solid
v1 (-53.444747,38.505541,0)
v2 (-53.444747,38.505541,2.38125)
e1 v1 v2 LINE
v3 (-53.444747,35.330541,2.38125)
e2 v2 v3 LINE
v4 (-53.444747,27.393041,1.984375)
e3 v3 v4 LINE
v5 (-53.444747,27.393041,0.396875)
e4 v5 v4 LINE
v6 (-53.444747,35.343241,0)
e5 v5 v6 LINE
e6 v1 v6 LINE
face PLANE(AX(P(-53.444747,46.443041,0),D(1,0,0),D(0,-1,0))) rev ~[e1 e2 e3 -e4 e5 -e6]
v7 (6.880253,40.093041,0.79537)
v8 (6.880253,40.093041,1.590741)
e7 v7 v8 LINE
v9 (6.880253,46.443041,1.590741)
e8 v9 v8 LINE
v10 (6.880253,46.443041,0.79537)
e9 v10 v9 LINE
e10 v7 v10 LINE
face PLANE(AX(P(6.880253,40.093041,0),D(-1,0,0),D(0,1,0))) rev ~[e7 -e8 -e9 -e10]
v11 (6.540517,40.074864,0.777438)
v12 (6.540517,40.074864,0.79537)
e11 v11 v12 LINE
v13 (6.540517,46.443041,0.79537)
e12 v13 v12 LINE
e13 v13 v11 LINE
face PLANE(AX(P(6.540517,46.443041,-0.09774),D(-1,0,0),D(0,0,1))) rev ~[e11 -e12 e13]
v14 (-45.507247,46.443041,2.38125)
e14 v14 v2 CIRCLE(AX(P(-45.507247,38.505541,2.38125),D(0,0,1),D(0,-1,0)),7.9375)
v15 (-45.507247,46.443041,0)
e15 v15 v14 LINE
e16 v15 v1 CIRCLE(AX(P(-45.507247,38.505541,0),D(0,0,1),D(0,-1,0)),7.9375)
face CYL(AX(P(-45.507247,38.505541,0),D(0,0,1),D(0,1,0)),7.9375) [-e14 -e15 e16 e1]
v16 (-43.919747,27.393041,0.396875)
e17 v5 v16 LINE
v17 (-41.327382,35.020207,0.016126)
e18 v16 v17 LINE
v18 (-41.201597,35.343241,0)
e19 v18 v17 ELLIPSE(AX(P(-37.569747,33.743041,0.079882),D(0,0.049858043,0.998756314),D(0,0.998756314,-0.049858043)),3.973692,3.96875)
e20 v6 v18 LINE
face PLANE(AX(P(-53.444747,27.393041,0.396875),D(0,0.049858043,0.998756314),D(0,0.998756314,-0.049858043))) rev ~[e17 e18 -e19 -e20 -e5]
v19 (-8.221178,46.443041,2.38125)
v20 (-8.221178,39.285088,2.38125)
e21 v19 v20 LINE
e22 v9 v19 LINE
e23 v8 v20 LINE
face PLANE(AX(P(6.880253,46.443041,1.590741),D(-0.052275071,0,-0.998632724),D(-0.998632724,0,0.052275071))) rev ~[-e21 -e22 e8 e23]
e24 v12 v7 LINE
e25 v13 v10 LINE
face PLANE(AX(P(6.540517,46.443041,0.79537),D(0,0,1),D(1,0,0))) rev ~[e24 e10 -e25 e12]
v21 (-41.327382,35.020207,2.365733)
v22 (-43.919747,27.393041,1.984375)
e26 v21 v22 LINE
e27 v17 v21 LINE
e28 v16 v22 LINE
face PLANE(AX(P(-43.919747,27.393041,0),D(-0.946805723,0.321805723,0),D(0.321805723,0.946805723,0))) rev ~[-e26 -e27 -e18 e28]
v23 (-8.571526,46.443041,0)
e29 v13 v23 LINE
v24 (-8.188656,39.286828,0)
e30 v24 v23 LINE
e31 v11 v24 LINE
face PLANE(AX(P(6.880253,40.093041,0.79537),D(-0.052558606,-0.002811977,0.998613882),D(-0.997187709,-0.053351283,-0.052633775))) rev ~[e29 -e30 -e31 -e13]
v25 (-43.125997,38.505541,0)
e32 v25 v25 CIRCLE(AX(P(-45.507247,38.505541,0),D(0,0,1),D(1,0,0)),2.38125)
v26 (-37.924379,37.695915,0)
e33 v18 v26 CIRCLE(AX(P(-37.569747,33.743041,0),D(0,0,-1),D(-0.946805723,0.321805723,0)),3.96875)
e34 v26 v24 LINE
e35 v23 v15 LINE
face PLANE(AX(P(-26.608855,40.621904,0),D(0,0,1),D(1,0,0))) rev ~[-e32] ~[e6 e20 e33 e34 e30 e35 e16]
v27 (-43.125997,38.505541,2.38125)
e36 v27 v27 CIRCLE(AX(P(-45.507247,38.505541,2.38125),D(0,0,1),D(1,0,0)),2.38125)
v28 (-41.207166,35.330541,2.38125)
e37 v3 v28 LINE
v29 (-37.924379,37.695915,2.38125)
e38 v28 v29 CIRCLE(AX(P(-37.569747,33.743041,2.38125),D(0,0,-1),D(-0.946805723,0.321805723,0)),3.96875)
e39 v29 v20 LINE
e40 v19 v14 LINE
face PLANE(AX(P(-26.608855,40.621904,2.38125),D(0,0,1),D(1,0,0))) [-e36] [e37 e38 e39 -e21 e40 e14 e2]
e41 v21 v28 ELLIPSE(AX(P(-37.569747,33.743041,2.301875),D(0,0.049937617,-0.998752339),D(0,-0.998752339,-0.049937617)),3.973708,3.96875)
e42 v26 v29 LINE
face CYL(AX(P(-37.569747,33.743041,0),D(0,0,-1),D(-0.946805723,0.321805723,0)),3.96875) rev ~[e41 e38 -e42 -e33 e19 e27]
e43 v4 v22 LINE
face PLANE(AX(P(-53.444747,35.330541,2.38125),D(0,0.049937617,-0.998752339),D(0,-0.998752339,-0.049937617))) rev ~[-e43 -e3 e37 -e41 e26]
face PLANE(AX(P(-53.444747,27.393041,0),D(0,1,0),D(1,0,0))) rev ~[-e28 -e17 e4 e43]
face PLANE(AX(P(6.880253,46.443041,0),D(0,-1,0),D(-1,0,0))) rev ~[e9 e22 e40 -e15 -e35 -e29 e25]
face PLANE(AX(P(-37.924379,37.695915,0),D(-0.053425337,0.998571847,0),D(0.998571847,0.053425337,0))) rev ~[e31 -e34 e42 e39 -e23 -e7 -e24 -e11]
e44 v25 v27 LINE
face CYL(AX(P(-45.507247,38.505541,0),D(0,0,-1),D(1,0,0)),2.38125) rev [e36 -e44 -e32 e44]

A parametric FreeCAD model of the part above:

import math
import FreeCAD as App
import Part
import Sketcher
Q = App.Units.Quantity


def edges_at(feature, points):
    """Names of the edges that pass closest to the given points."""
    edges = feature.Shape.Edges
    near = lambda p: min(range(len(edges)), key=lambda i: edges[i].distToShape(Part.Vertex(*p))[0])
    return sorted({f"Edge{near(p) + 1}" for p in points})


def add_polygon(sketch, points):
    """Adds a closed chain of lines whose ends are joined by coincident constraints."""
    first, n = sketch.GeometryCount, len(points)
    for a, b in zip(points, points[1:] + points[:1]):
        sketch.addGeometry(Part.LineSegment(App.Vector(*a, 0), App.Vector(*b, 0)), False)
    for i in range(n):
        sketch.addConstraint(Sketcher.Constraint("Coincident", first + i, 2, first + (i + 1) % n, 1))

doc = App.newDocument("Part")
body = doc.addObject("PartDesign::Body", "Body")

# Sketch on XY plane
sketch1 = doc.addObject("Sketcher::SketchObject", "Sketch")
body.addObject(sketch1)
sketch1.AttachmentSupport = (doc.XY_Plane, [""])
sketch1.MapMode = "FlatFace"
sketch1.addGeometry([
    Part.LineSegment(App.Vector(6.9, 46.4, 0), App.Vector(-53.4, 46.4, 0)),  # 0
    Part.LineSegment(App.Vector(-53.4, 46.4, 0), App.Vector(-53.4, 27.4, 0)),  # 1
    Part.LineSegment(App.Vector(-53.4, 27.4, 0), App.Vector(-43.9, 27.4, 0)),  # 2
    Part.LineSegment(App.Vector(-43.9, 27.4, 0), App.Vector(-41.3, 35, 0)),  # 3
    Part.ArcOfCircle(Part.Circle(App.Vector(-37.6, 33.7, 0), App.Vector(0, 0, 1), 4), math.radians(95), math.radians(161)),  # 4
    Part.LineSegment(App.Vector(-37.9, 37.7, 0), App.Vector(6.9, 40.1, 0)),  # 5
    Part.LineSegment(App.Vector(6.9, 40.1, 0), App.Vector(6.9, 46.4, 0)),  # 6
    Part.Circle(App.Vector(-45.5, 38.5, 0), App.Vector(0, 0, 1), 2.4),  # 7
], False)
sketch1.addConstraint([
    Sketcher.Constraint("Coincident", 0, 2, 1, 1),
    Sketcher.Constraint("Coincident", 1, 2, 2, 1),
    Sketcher.Constraint("Coincident", 2, 2, 3, 1),
    Sketcher.Constraint("Tangent", 3, 2, 4, 2),
    Sketcher.Constraint("Coincident", 4, 1, 5, 1),
    Sketcher.Constraint("Coincident", 5, 2, 6, 1),
    Sketcher.Constraint("Coincident", 6, 2, 0, 1),
    Sketcher.Constraint("Horizontal", 0),
    Sketcher.Constraint("Vertical", 1),
    Sketcher.Constraint("Horizontal", 2),
    Sketcher.Constraint("Vertical", 6),
    Sketcher.Constraint("Diameter", 7, Q("0.1875 in")),
    Sketcher.Constraint("Radius", 4, Q("0.15625 in")),
    Sketcher.Constraint("DistanceX", 2, 2, 5, 2, Q("2 in")),
    Sketcher.Constraint("DistanceY", 1, 2, 1, 1, Q("0.75 in")),
    Sketcher.Constraint("DistanceY", 6, 1, 6, 2, Q("0.25 in")),
    Sketcher.Constraint("DistanceY", 4, 3, 0, 2, Q("0.5 in")),
    Sketcher.Constraint("DistanceX", 0, 2, 0, 1, Q("2.375 in")),
    Sketcher.Constraint("DistanceX", 2, 2, 4, 3, Q("0.25 in")),
    Sketcher.Constraint("DistanceX", 7, 3, 4, 3, Q("0.3125 in")),
    Sketcher.Constraint("DistanceY", 4, 3, 7, 3, Q("0.1875 in")),
    Sketcher.Constraint("Distance", 5, Q("44.868712 mm")),
    Sketcher.Constraint("DistanceY", -1, 1, 4, 3, Q("33.743041 mm")),
    Sketcher.Constraint("DistanceX", 4, 1, -1, 1, Q("37.924379 mm")),
])
pad1 = doc.addObject("PartDesign::Pad", "Pad")
body.addObject(pad1)
pad1.Profile = sketch1
pad1.Length = Q("0.09375 in")
doc.recompute()

fillet = doc.addObject("PartDesign::Fillet", "Fillet")
body.addObject(fillet)
fillet.Base = (pad1, edges_at(pad1, [(-53.445, 46.443, 1.191)]))
fillet.Radius = Q("0.3125 in")

# Sketch on XZ plane
sketch2 = doc.addObject("Sketcher::SketchObject", "Sketch001")
body.addObject(sketch2)
sketch2.AttachmentSupport = (doc.XZ_Plane, [""])
sketch2.MapMode = "FlatFace"
sketch2.AttachmentOffset = App.Placement(App.Vector(0, 0, -46.443041), App.Rotation())
add_polygon(sketch2, [(7.26976, 1.55048), (6.880253, 1.590741), (-8.221178, 2.38125), (-8.203061, 2.727358), (7.219336, 3.199072)])  # lines 0-4
sketch2.addConstraint([
    Sketcher.Constraint("DistanceY", -1, 1, 1, 2, Q("0.09375 in")),
    Sketcher.Constraint("Distance", 3, Q("15.429609 mm")),
    Sketcher.Constraint("DistanceY", -1, 1, 0, 2, Q("1.590741 mm")),
    Sketcher.Constraint("DistanceX", 1, 2, -1, 1, Q("8.221178 mm")),
    Sketcher.Constraint("DistanceX", 2, 2, -1, 1, Q("8.203061 mm")),
    Sketcher.Constraint("DistanceY", -1, 1, 2, 2, Q("2.727358 mm")),
    Sketcher.Constraint("DistanceX", -1, 1, 4, 2, Q("7.26976 mm")),
    Sketcher.Constraint("DistanceY", -1, 1, 4, 2, Q("1.55048 mm")),
    Sketcher.Constraint("DistanceX", 1, 2, 0, 2, Q("15.101431 mm")),
    Sketcher.Constraint("DistanceY", 0, 2, 3, 2, Q("1.608332 mm")),
])
pocket1 = doc.addObject("PartDesign::Pocket", "Pocket")
body.addObject(pocket1)
pocket1.Profile = sketch2
pocket1.Type = "ThroughAll"
pocket1.Reversed = True

# Sketch on an angled plane
sketch3 = doc.addObject("Sketcher::SketchObject", "Sketch002")
body.addObject(sketch3)
sketch3.Placement = App.Placement(App.Vector(-2.119287, 39.611549, 0), App.Rotation(App.Vector(0.998571847, 0.053425337, 0), App.Vector(0, 0, 1), App.Vector(0.053425337, -0.998571847, 0), "ZXY"))
add_polygon(sketch3, [(9, 0.8), (-6.1, 0), (9, 0)])  # lines 0-2
sketch3.addConstraint([
    Sketcher.Constraint("Horizontal", 1),
    Sketcher.Constraint("Vertical", 2),
    Sketcher.Constraint("PointOnObject", 0, 2, -1),
    Sketcher.Constraint("DistanceX", 1, 1, 1, 2, Q("15.09046 mm")),
    Sketcher.Constraint("DistanceY", 2, 1, 2, 2, Q("0.79537 mm")),
    Sketcher.Constraint("DistanceX", 0, 2, -1, 1, Q("6.078049 mm")),
])
pocket2 = doc.addObject("PartDesign::Pocket", "Pocket001")
body.addObject(pocket2)
pocket2.Profile = sketch3
pocket2.Type = "ThroughAll"

# Sketch on XZ plane
sketch4 = doc.addObject("Sketcher::SketchObject", "Sketch003")
body.addObject(sketch4)
sketch4.AttachmentSupport = (doc.XZ_Plane, [""])
sketch4.MapMode = "FlatFace"
sketch4.AttachmentOffset = App.Placement(App.Vector(0, 0, -46.443041), App.Rotation())
add_polygon(sketch4, [(6.54, 0.8), (6.98, 0.8), (6.98, -0.1), (6.54, -0.1)])  # lines 0-3
sketch4.addConstraint([
    Sketcher.Constraint("Horizontal", 0),
    Sketcher.Constraint("Vertical", 1),
    Sketcher.Constraint("Horizontal", 2),
    Sketcher.Constraint("Vertical", 3),
    Sketcher.Constraint("DistanceY", 1, 2, 1, 1, Q("0.89311 mm")),
    Sketcher.Constraint("DistanceX", 0, 1, 0, 2, Q("0.443137 mm")),
    Sketcher.Constraint("DistanceY", -1, 1, 0, 2, Q("0.79537 mm")),
    Sketcher.Constraint("DistanceX", -1, 1, 0, 2, Q("6.983654 mm")),
])
pocket3 = doc.addObject("PartDesign::Pocket", "Pocket002")
body.addObject(pocket3)
pocket3.Profile = sketch4
pocket3.Type = "ThroughAll"
pocket3.Reversed = True

# Sketch on YZ plane
sketch5 = doc.addObject("Sketcher::SketchObject", "Sketch004")
body.addObject(sketch5)
sketch5.AttachmentSupport = (doc.YZ_Plane, [""])
sketch5.MapMode = "FlatFace"
sketch5.AttachmentOffset = App.Placement(App.Vector(0, 0, -53.444747), App.Rotation())
add_polygon(sketch5, [(35.33, 2.38), (27.39, 1.98), (26.68, 1.98), (26.71, 2.73)])  # lines 0-3
add_polygon(sketch5, [(26.94, 0.4), (27.39, 0.4), (35.34, 0), (35.01, -0.31), (26.82, -0.31)])  # lines 4-8
sketch5.addConstraint([
    Sketcher.Constraint("Horizontal", 1),
    Sketcher.Constraint("Horizontal", 4),
    Sketcher.Constraint("Horizontal", 7),
    Sketcher.Constraint("PointOnObject", 5, 2, -1),
    Sketcher.Constraint("Perpendicular", 2, 3),
    Sketcher.Constraint("Vertical", 0, 2, 4, 2),
    Sketcher.Constraint("DistanceY", -1, 1, 0, 2, Q("0.078125 in")),
    Sketcher.Constraint("DistanceY", -1, 1, 3, 2, Q("0.09375 in")),
    Sketcher.Constraint("DistanceY", -1, 1, 4, 2, Q("0.015625 in")),
    Sketcher.Constraint("DistanceX", 0, 2, 3, 2, Q("0.3125 in")),
    Sketcher.Constraint("DistanceX", 4, 2, 5, 2, Q("0.313 in")),
    Sketcher.Constraint("Distance", 8, Q("0.716502 mm")),
    Sketcher.Constraint("DistanceX", 4, 1, 4, 2, Q("0.450221 mm")),
    Sketcher.Constraint("DistanceX", 7, 2, 7, 1, Q("8.191239 mm")),
    Sketcher.Constraint("Distance", 2, Q("0.741642 mm")),
    Sketcher.Constraint("Distance", 6, Q("0.452359 mm")),
    Sketcher.Constraint("DistanceX", 1, 2, 1, 1, Q("0.708105 mm")),
    Sketcher.Constraint("DistanceX", -1, 1, 0, 2, Q("27.393041 mm")),
])
pocket4 = doc.addObject("PartDesign::Pocket", "Pocket003")
body.addObject(pocket4)
pocket4.Profile = sketch5
pocket4.Type = "ThroughAll"
pocket4.Reversed = True

doc.recompute()
